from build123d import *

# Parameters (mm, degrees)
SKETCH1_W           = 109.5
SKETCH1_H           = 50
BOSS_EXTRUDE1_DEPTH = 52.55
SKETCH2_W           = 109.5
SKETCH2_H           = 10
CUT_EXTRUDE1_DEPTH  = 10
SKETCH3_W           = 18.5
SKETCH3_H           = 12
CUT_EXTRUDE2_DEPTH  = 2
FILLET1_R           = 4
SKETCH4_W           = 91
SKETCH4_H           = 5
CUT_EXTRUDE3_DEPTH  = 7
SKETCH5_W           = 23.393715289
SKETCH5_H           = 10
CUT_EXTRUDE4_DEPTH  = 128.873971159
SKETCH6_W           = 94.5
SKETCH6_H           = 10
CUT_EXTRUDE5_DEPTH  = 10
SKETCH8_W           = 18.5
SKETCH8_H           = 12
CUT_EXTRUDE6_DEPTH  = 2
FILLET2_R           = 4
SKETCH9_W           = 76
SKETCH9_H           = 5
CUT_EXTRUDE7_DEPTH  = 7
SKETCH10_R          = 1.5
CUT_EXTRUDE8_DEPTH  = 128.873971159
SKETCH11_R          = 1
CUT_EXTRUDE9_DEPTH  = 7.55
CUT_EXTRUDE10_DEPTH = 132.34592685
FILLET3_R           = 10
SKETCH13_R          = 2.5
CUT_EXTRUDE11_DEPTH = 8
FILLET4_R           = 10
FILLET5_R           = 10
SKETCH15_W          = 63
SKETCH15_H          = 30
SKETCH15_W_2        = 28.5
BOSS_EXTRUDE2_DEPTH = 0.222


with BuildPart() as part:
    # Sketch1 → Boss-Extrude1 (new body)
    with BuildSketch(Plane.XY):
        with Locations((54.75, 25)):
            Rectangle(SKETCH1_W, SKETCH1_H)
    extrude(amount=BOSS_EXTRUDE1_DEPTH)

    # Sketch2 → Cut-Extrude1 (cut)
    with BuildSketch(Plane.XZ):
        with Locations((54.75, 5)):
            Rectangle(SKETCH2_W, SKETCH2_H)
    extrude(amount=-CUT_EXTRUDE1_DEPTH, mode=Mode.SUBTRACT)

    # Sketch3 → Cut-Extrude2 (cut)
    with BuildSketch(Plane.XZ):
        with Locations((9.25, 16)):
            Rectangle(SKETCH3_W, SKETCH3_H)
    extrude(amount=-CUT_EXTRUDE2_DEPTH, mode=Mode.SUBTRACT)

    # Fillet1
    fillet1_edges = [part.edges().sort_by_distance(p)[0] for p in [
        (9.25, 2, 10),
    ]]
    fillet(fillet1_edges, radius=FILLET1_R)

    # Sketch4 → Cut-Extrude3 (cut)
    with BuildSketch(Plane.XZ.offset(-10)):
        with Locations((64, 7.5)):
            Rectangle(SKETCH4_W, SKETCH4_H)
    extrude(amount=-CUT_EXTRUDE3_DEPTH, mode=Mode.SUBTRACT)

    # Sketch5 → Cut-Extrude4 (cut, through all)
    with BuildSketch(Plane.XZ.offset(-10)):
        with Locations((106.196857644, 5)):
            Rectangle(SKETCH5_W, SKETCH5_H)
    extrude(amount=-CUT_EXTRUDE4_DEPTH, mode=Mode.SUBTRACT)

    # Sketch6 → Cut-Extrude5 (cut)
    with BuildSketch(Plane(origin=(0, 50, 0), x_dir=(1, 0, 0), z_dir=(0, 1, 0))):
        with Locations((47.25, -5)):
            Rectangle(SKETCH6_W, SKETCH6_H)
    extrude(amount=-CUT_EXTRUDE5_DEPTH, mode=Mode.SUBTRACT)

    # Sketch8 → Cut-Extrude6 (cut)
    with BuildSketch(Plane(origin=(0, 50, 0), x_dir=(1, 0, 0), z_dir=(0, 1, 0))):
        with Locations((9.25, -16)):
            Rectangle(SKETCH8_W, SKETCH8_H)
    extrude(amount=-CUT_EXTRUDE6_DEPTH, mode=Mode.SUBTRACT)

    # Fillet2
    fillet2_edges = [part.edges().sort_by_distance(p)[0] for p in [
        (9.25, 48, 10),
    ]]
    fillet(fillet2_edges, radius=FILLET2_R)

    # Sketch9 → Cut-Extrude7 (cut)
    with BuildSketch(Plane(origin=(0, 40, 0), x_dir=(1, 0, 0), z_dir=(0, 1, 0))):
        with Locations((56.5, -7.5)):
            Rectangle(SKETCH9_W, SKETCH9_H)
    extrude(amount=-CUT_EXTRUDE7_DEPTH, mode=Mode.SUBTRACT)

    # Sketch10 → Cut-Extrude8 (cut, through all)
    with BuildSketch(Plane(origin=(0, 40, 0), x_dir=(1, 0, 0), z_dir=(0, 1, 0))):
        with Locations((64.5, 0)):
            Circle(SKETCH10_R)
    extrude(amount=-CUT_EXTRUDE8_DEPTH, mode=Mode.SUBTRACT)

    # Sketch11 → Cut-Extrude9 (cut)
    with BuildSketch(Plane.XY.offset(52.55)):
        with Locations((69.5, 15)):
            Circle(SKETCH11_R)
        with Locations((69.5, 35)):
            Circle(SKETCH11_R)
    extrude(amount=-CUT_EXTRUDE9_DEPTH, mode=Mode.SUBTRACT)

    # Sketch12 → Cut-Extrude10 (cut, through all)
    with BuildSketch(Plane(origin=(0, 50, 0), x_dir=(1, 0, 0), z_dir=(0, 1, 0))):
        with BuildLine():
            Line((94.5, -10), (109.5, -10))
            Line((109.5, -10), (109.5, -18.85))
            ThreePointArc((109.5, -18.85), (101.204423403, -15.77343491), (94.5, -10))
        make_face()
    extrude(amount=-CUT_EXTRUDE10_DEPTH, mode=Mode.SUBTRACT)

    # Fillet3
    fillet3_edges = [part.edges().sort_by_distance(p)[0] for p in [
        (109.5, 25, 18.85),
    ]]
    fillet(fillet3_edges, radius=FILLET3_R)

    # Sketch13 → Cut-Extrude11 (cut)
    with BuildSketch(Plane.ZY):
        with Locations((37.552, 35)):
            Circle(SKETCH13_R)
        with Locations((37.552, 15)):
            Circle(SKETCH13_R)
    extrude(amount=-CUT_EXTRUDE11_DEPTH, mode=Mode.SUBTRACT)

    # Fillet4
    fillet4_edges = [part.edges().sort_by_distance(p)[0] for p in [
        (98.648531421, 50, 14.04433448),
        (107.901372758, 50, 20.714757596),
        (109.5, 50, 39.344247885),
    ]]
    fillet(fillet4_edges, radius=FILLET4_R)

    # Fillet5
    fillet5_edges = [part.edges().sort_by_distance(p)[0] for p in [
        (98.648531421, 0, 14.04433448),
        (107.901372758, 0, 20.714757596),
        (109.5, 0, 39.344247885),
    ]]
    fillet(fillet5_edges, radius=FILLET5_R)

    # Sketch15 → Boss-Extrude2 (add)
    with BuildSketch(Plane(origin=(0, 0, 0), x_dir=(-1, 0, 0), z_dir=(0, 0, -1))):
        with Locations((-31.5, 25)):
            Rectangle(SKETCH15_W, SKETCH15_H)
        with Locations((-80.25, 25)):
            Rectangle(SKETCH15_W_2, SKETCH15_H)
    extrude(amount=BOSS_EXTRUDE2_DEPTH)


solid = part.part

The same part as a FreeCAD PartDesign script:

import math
import FreeCAD as App
import Part
import Sketcher

V = App.Vector


def edges_at(feature, points):
    """Names of the edges that pass closest to the given points."""
    edges = feature.Shape.Edges
    near = lambda p: min(range(len(edges)), key=lambda i: edges[i].distToShape(Part.Vertex(*p))[0])
    return sorted({f"Edge{near(p) + 1}" for p in points})


def add_polygon(sketch, points):
    """Adds a closed chain of lines whose ends are joined by coincident constraints."""
    first, n = sketch.GeometryCount, len(points)
    for a, b in zip(points, points[1:] + points[:1]):
        sketch.addGeometry(Part.LineSegment(App.Vector(*a, 0), App.Vector(*b, 0)), False)
    for i in range(n):
        sketch.addConstraint(Sketcher.Constraint("Coincident", first + i, 2, first + (i + 1) % n, 1))

doc = App.newDocument("Part")
params = doc.addObject("Spreadsheet::Sheet", "Params")
for row, (alias, value) in enumerate([
    ("sketch1_height", "50 mm"),
    ("sketch1_width", "109.5 mm"),
    ("pad1_length", "52.55 mm"),
    ("sketch2_height", "10 mm"),
    ("sketch2_width", "109.5 mm"),
    ("pocket1_length", "10 mm"),
    ("sketch3_height", "12 mm"),
    ("sketch3_width", "18.5 mm"),
    ("pocket2_length", "2 mm"),
    ("fillet_radius", "4 mm"),
    ("sketch4_width", "91 mm"),
    ("sketch4_height", "5 mm"),
    ("pocket3_length", "7 mm"),
    ("sketch5_height", "10 mm"),
    ("sketch6_height", "10 mm"),
    ("sketch6_width", "94.5 mm"),
    ("pocket5_length", "10 mm"),
    ("sketch7_height", "12 mm"),
    ("sketch7_width", "18.5 mm"),
    ("pocket6_length", "2 mm"),
    ("fillet2_radius", "4 mm"),
    ("sketch8_width", "76 mm"),
    ("sketch8_height", "5 mm"),
    ("pocket7_length", "7 mm"),
    ("sketch9_diameter", "3 mm"),
    ("sketch10_diameter", "2 mm"),
    ("pocket9_length", "7.55 mm"),
    ("sketch11_radius", "25 mm"),
    ("sketch11_width", "15 mm"),
    ("sketch11_height", "8.85 mm"),
    ("fillet3_radius", "10 mm"),
    ("sketch12_diameter", "5 mm"),
    ("pocket11_length", "8 mm"),
    ("fillet4_radius", "10 mm"),
    ("fillet5_radius", "10 mm"),
    ("sketch13_width", "63 mm"),
    ("sketch13_height", "30 mm"),
    ("sketch13_width2", "28.5 mm"),
    ("pad2_length", "0.222 mm"),
], start=1):
    params.set(f"A{row}", alias)
    params.set(f"B{row}", "=" + value)
    params.setAlias(f"B{row}", alias)

body = doc.addObject("PartDesign::Body", "Body")

# Sketch on XY plane
sketch1 = body.newObject("Sketcher::SketchObject", "Sketch")
sketch1.AttachmentSupport = (doc.getObject("XY_Plane"), [""])
sketch1.MapMode = "FlatFace"
add_polygon(sketch1, [(0, 50), (0, 0), (110, 0), (110, 50)])  # lines 0-3
sketch1.addConstraint(Sketcher.Constraint("Vertical", 0))
sketch1.addConstraint(Sketcher.Constraint("Horizontal", 1))
sketch1.addConstraint(Sketcher.Constraint("Vertical", 2))
sketch1.addConstraint(Sketcher.Constraint("Horizontal", 3))
sketch1.addConstraint(Sketcher.Constraint("Coincident", 0, 2, -1, 1))
sketch1.addConstraint(Sketcher.Constraint("DistanceY", 0, 2, 0, 1, 50.0))
sketch1.addConstraint(Sketcher.Constraint("DistanceX", 1, 1, 1, 2, 109.5))
sketch1.setExpression("Constraints[9]", "Params.sketch1_height")
sketch1.setExpression("Constraints[10]", "Params.sketch1_width")
pad1 = body.newObject("PartDesign::Pad", "Pad")
pad1.Profile = sketch1
pad1.setExpression("Length", "Params.pad1_length")

# Sketch on XZ plane
sketch2 = body.newObject("Sketcher::SketchObject", "Sketch001")
sketch2.AttachmentSupport = (doc.getObject("XZ_Plane"), [""])
sketch2.MapMode = "FlatFace"
add_polygon(sketch2, [(0, 10), (0, 0), (110, 0), (110, 10)])  # lines 0-3
sketch2.addConstraint(Sketcher.Constraint("Vertical", 0))
sketch2.addConstraint(Sketcher.Constraint("Horizontal", 1))
sketch2.addConstraint(Sketcher.Constraint("Vertical", 2))
sketch2.addConstraint(Sketcher.Constraint("Horizontal", 3))
sketch2.addConstraint(Sketcher.Constraint("Coincident", 0, 2, -1, 1))
sketch2.addConstraint(Sketcher.Constraint("DistanceY", 0, 2, 0, 1, 10.0))
sketch2.addConstraint(Sketcher.Constraint("DistanceX", 1, 1, 1, 2, 109.5))
sketch2.setExpression("Constraints[9]", "Params.sketch2_height")
sketch2.setExpression("Constraints[10]", "Params.sketch2_width")
pocket1 = body.newObject("PartDesign::Pocket", "Pocket")
pocket1.Profile = sketch2
pocket1.setExpression("Length", "Params.pocket1_length")

# Sketch on XZ plane
sketch3 = body.newObject("Sketcher::SketchObject", "Sketch002")
sketch3.AttachmentSupport = (doc.getObject("XZ_Plane"), [""])
sketch3.MapMode = "FlatFace"
add_polygon(sketch3, [(0, 22), (0, 10), (18, 10), (18, 22)])  # lines 0-3
sketch3.addConstraint(Sketcher.Constraint("Vertical", 0))
sketch3.addConstraint(Sketcher.Constraint("Horizontal", 1))
sketch3.addConstraint(Sketcher.Constraint("Vertical", 2))
sketch3.addConstraint(Sketcher.Constraint("Horizontal", 3))
sketch3.addConstraint(Sketcher.Constraint("PointOnObject", 0, 2, -2))
sketch3.addConstraint(Sketcher.Constraint("DistanceY", 0, 2, 0, 1, 12.0))
sketch3.addConstraint(Sketcher.Constraint("DistanceX", 1, 1, 1, 2, 18.5))
sketch3.addConstraint(Sketcher.Constraint("DistanceY", -1, 1, 0, 2, 10.0))
sketch3.setExpression("Constraints[9]", "Params.sketch3_height")
sketch3.setExpression("Constraints[10]", "Params.sketch3_width")
pocket2 = body.newObject("PartDesign::Pocket", "Pocket001")
pocket2.Profile = sketch3
pocket2.setExpression("Length", "Params.pocket2_length")
doc.recompute()

fillet = body.newObject("PartDesign::Fillet", "Fillet")
fillet.Base = (pocket2, edges_at(pocket2, [(9.25, 2, 10)]))
fillet.setExpression("Radius", "Params.fillet_radius")

# Sketch on XZ plane
sketch4 = body.newObject("Sketcher::SketchObject", "Sketch003")
sketch4.AttachmentSupport = (doc.getObject("XZ_Plane"), [""])
sketch4.MapMode = "FlatFace"
sketch4.AttachmentOffset = App.Placement(V(0, 0, -10), App.Rotation())
add_polygon(sketch4, [(18, 10), (18, 5), (110, 5), (110, 10)])  # lines 0-3
sketch4.addConstraint(Sketcher.Constraint("Vertical", 0))
sketch4.addConstraint(Sketcher.Constraint("Horizontal", 1))
sketch4.addConstraint(Sketcher.Constraint("Vertical", 2))
sketch4.addConstraint(Sketcher.Constraint("Horizontal", 3))
sketch4.addConstraint(Sketcher.Constraint("DistanceX", 1, 1, 1, 2, 91.0))
sketch4.addConstraint(Sketcher.Constraint("DistanceY", 0, 2, 0, 1, 5.0))
sketch4.addConstraint(Sketcher.Constraint("DistanceY", -1, 1, 0, 2, 5.0))
sketch4.addConstraint(Sketcher.Constraint("DistanceX", -1, 1, 0, 2, 18.5))
sketch4.setExpression("Constraints[8]", "Params.sketch4_width")
sketch4.setExpression("Constraints[9]", "Params.sketch4_height")
pocket3 = body.newObject("PartDesign::Pocket", "Pocket002")
pocket3.Profile = sketch4
pocket3.setExpression("Length", "Params.pocket3_length")

# Sketch on XZ plane
sketch5 = body.newObject("Sketcher::SketchObject", "Sketch004")
sketch5.AttachmentSupport = (doc.getObject("XZ_Plane"), [""])
sketch5.MapMode = "FlatFace"
sketch5.AttachmentOffset = App.Placement(V(0, 0, -10), App.Rotation())
add_polygon(sketch5, [(94, 10), (94, 0), (118, 0), (118, 10)])  # lines 0-3
sketch5.addConstraint(Sketcher.Constraint("Vertical", 0))
sketch5.addConstraint(Sketcher.Constraint("Horizontal", 1))
sketch5.addConstraint(Sketcher.Constraint("Vertical", 2))
sketch5.addConstraint(Sketcher.Constraint("Horizontal", 3))
sketch5.addConstraint(Sketcher.Constraint("PointOnObject", 0, 2, -1))
sketch5.addConstraint(Sketcher.Constraint("DistanceY", 0, 2, 0, 1, 10.0))
sketch5.addConstraint(Sketcher.Constraint("DistanceX", -1, 1, 0, 2, 94.5))
sketch5.addConstraint(Sketcher.Constraint("DistanceX", 1, 1, 1, 2, 23.393715))
sketch5.setExpression("Constraints[9]", "Params.sketch5_height")
pocket4 = body.newObject("PartDesign::Pocket", "Pocket003")
pocket4.Profile = sketch5
pocket4.Type = "ThroughAll"

# Sketch on XZ plane
sketch6 = body.newObject("Sketcher::SketchObject", "Sketch005")
sketch6.AttachmentSupport = (doc.getObject("XZ_Plane"), [""])
sketch6.MapMode = "FlatFace"
sketch6.AttachmentOffset = App.Placement(V(0, 0, -50), App.Rotation())
add_polygon(sketch6, [(0, 0), (0, 10), (94, 10), (94, 0)])  # lines 0-3
sketch6.addConstraint(Sketcher.Constraint("Vertical", 0))
sketch6.addConstraint(Sketcher.Constraint("Horizontal", 1))
sketch6.addConstraint(Sketcher.Constraint("Vertical", 2))
sketch6.addConstraint(Sketcher.Constraint("Horizontal", 3))
sketch6.addConstraint(Sketcher.Constraint("Coincident", 3, 2, -1, 1))
sketch6.addConstraint(Sketcher.Constraint("DistanceY", 0, 1, 0, 2, 10.0))
sketch6.addConstraint(Sketcher.Constraint("DistanceX", 1, 1, 1, 2, 94.5))
sketch6.setExpression("Constraints[9]", "Params.sketch6_height")
sketch6.setExpression("Constraints[10]", "Params.sketch6_width")
pocket5 = body.newObject("PartDesign::Pocket", "Pocket004")
pocket5.Profile = sketch6
pocket5.setExpression("Length", "Params.pocket5_length")
pocket5.Reversed = True

# Sketch on XZ plane
sketch7 = body.newObject("Sketcher::SketchObject", "Sketch006")
sketch7.AttachmentSupport = (doc.getObject("XZ_Plane"), [""])
sketch7.MapMode = "FlatFace"
sketch7.AttachmentOffset = App.Placement(V(0, 0, -50), App.Rotation())
add_polygon(sketch7, [(0, 10), (0, 22), (18, 22), (18, 10)])  # lines 0-3
sketch7.addConstraint(Sketcher.Constraint("Vertical", 0))
sketch7.addConstraint(Sketcher.Constraint("Horizontal", 1))
sketch7.addConstraint(Sketcher.Constraint("Vertical", 2))
sketch7.addConstraint(Sketcher.Constraint("Horizontal", 3))
sketch7.addConstraint(Sketcher.Constraint("PointOnObject", 0, 2, -2))
sketch7.addConstraint(Sketcher.Constraint("DistanceY", 0, 1, 0, 2, 12.0))
sketch7.addConstraint(Sketcher.Constraint("DistanceX", 1, 1, 1, 2, 18.5))
sketch7.addConstraint(Sketcher.Constraint("DistanceY", -1, 1, 0, 2, 22.0))
sketch7.setExpression("Constraints[9]", "Params.sketch7_height")
sketch7.setExpression("Constraints[10]", "Params.sketch7_width")
pocket6 = body.newObject("PartDesign::Pocket", "Pocket005")
pocket6.Profile = sketch7
pocket6.setExpression("Length", "Params.pocket6_length")
pocket6.Reversed = True
doc.recompute()

fillet2 = body.newObject("PartDesign::Fillet", "Fillet001")
fillet2.Base = (pocket6, edges_at(pocket6, [(9.25, 48, 10)]))
fillet2.setExpression("Radius", "Params.fillet2_radius")

# Sketch on XZ plane
sketch8 = body.newObject("Sketcher::SketchObject", "Sketch007")
sketch8.AttachmentSupport = (doc.getObject("XZ_Plane"), [""])
sketch8.MapMode = "FlatFace"
sketch8.AttachmentOffset = App.Placement(V(0, 0, -40), App.Rotation())
add_polygon(sketch8, [(18, 5), (18, 10), (94, 10), (94, 5)])  # lines 0-3
sketch8.addConstraint(Sketcher.Constraint("Vertical", 0))
sketch8.addConstraint(Sketcher.Constraint("Horizontal", 1))
sketch8.addConstraint(Sketcher.Constraint("Vertical", 2))
sketch8.addConstraint(Sketcher.Constraint("Horizontal", 3))
sketch8.addConstraint(Sketcher.Constraint("DistanceX", 1, 1, 1, 2, 76.0))
sketch8.addConstraint(Sketcher.Constraint("DistanceY", 0, 1, 0, 2, 5.0))
sketch8.addConstraint(Sketcher.Constraint("DistanceY", -1, 1, 0, 2, 10.0))
sketch8.addConstraint(Sketcher.Constraint("DistanceX", -1, 1, 0, 2, 18.5))
sketch8.setExpression("Constraints[8]", "Params.sketch8_width")
sketch8.setExpression("Constraints[9]", "Params.sketch8_height")
pocket7 = body.newObject("PartDesign::Pocket", "Pocket006")
pocket7.Profile = sketch8
pocket7.setExpression("Length", "Params.pocket7_length")
pocket7.Reversed = True

# Sketch on XZ plane
sketch9 = body.newObject("Sketcher::SketchObject", "Sketch008")
sketch9.AttachmentSupport = (doc.getObject("XZ_Plane"), [""])
sketch9.MapMode = "FlatFace"
sketch9.AttachmentOffset = App.Placement(V(0, 0, -40), App.Rotation())
sketch9.addGeometry(Part.Circle(V(64.5, 0, 0), V(0, 0, 1), 1.5), False)
sketch9.addConstraint(Sketcher.Constraint("PointOnObject", 0, 3, -1))
sketch9.addConstraint(Sketcher.Constraint("Diameter", 0, 3.0))
sketch9.addConstraint(Sketcher.Constraint("DistanceX", -1, 1, 0, 3, 64.5))
sketch9.setExpression("Constraints[1]", "Params.sketch9_diameter")
pocket8 = body.newObject("PartDesign::Pocket", "Pocket007")
pocket8.Profile = sketch9
pocket8.Type = "ThroughAll"
pocket8.Reversed = True

# Sketch on XY plane
sketch10 = body.newObject("Sketcher::SketchObject", "Sketch009")
sketch10.AttachmentSupport = (doc.getObject("XY_Plane"), [""])
sketch10.MapMode = "FlatFace"
sketch10.AttachmentOffset = App.Placement(V(0, 0, 52.55), App.Rotation())
sketch10.addGeometry(Part.Circle(V(69.5, 15, 0), V(0, 0, 1), 1), False)
sketch10.addGeometry(Part.Circle(V(69.5, 35, 0), V(0, 0, 1), 1), False)
sketch10.addConstraint(Sketcher.Constraint("Equal", 0, 1))
sketch10.addConstraint(Sketcher.Constraint("Vertical", 0, 3, 1, 3))
sketch10.addConstraint(Sketcher.Constraint("Diameter", 0, 2.0))
sketch10.addConstraint(Sketcher.Constraint("DistanceY", -1, 1, 0, 3, 15.0))
sketch10.addConstraint(Sketcher.Constraint("DistanceY", -1, 1, 1, 3, 35.0))
sketch10.addConstraint(Sketcher.Constraint("DistanceX", -1, 1, 0, 3, 69.5))
sketch10.setExpression("Constraints[2]", "Params.sketch10_diameter")
pocket9 = body.newObject("PartDesign::Pocket", "Pocket008")
pocket9.Profile = sketch10
pocket9.setExpression("Length", "Params.pocket9_length")

# Sketch on XZ plane
sketch11 = body.newObject("Sketcher::SketchObject", "Sketch010")
sketch11.AttachmentSupport = (doc.getObject("XZ_Plane"), [""])
sketch11.MapMode = "FlatFace"
sketch11.AttachmentOffset = App.Placement(V(0, 0, -50), App.Rotation())
sketch11.addGeometry(Part.LineSegment(V(110, 10, 0), V(94, 10, 0)), False)
sketch11.addGeometry(Part.ArcOfCircle(Part.Circle(V(114, -6, 0), V(0, 0, 1), 25), math.radians(100), math.radians(141)), False)
sketch11.addGeometry(Part.LineSegment(V(110, 19, 0), V(110, 10, 0)), False)
sketch11.addConstraint(Sketcher.Constraint("Coincident", 0, 2, 1, 2))
sketch11.addConstraint(Sketcher.Constraint("Coincident", 1, 1, 2, 1))
sketch11.addConstraint(Sketcher.Constraint("Coincident", 2, 2, 0, 1))
sketch11.addConstraint(Sketcher.Constraint("Horizontal", 0))
sketch11.addConstraint(Sketcher.Constraint("Vertical", 2))
sketch11.addConstraint(Sketcher.Constraint("Radius", 1, 25.0))
sketch11.addConstraint(Sketcher.Constraint("DistanceX", 0, 2, 0, 1, 15.0))
sketch11.addConstraint(Sketcher.Constraint("DistanceY", -1, 1, 0, 2, 10.0))
sketch11.addConstraint(Sketcher.Constraint("DistanceY", 2, 2, 2, 1, 8.85))
sketch11.addConstraint(Sketcher.Constraint("DistanceX", -1, 1, 0, 2, 94.5))
sketch11.setExpression("Constraints[5]", "Params.sketch11_radius")
sketch11.setExpression("Constraints[6]", "Params.sketch11_width")
sketch11.setExpression("Constraints[8]", "Params.sketch11_height")
pocket10 = body.newObject("PartDesign::Pocket", "Pocket009")
pocket10.Profile = sketch11
pocket10.Type = "ThroughAll"
pocket10.Reversed = True
doc.recompute()

fillet3 = body.newObject("PartDesign::Fillet", "Fillet002")
fillet3.Base = (pocket10, edges_at(pocket10, [(109.5, 25, 18.85)]))
fillet3.setExpression("Radius", "Params.fillet3_radius")

# Sketch on YZ plane
sketch12 = body.newObject("Sketcher::SketchObject", "Sketch011")
sketch12.AttachmentSupport = (doc.getObject("YZ_Plane"), [""])
sketch12.MapMode = "FlatFace"
sketch12.addGeometry(Part.Circle(V(35, 37.6, 0), V(0, 0, 1), 2.5), False)
sketch12.addGeometry(Part.Circle(V(15, 37.6, 0), V(0, 0, 1), 2.5), False)
sketch12.addConstraint(Sketcher.Constraint("Equal", 0, 1))
sketch12.addConstraint(Sketcher.Constraint("Horizontal", 0, 3, 1, 3))
sketch12.addConstraint(Sketcher.Constraint("Diameter", 0, 5.0))
sketch12.addConstraint(Sketcher.Constraint("DistanceX", -1, 1, 0, 3, 35.0))
sketch12.addConstraint(Sketcher.Constraint("DistanceX", -1, 1, 1, 3, 15.0))
sketch12.addConstraint(Sketcher.Constraint("DistanceY", -1, 1, 0, 3, 37.552))
sketch12.setExpression("Constraints[2]", "Params.sketch12_diameter")
pocket11 = body.newObject("PartDesign::Pocket", "Pocket010")
pocket11.Profile = sketch12
pocket11.setExpression("Length", "Params.pocket11_length")
pocket11.Reversed = True
doc.recompute()

fillet4 = body.newObject("PartDesign::Fillet", "Fillet003")
fillet4.Base = (pocket11, edges_at(pocket11, [(98.649, 50, 14.044), (107.901, 50, 20.715), (109.5, 50, 39.344)]))
fillet4.setExpression("Radius", "Params.fillet4_radius")
doc.recompute()

fillet5 = body.newObject("PartDesign::Fillet", "Fillet004")
fillet5.Base = (fillet4, edges_at(fillet4, [(98.649, 0, 14.044), (107.901, 0, 20.715), (109.5, 0, 39.344)]))
fillet5.setExpression("Radius", "Params.fillet5_radius")

# Sketch on XY plane
sketch13 = body.newObject("Sketcher::SketchObject", "Sketch012")
sketch13.AttachmentSupport = (doc.getObject("XY_Plane"), [""])
sketch13.MapMode = "FlatFace"
add_polygon(sketch13, [(63, 40), (63, 10), (0, 10), (0, 40)])  # lines 0-3
add_polygon(sketch13, [(94, 40), (94, 10), (66, 10), (66, 40)])  # lines 4-7
sketch13.addConstraint(Sketcher.Constraint("Vertical", 0))
sketch13.addConstraint(Sketcher.Constraint("Horizontal", 1))
sketch13.addConstraint(Sketcher.Constraint("Vertical", 2))
sketch13.addConstraint(Sketcher.Constraint("Horizontal", 3))
sketch13.addConstraint(Sketcher.Constraint("Vertical", 4))
sketch13.addConstraint(Sketcher.Constraint("Horizontal", 5))
sketch13.addConstraint(Sketcher.Constraint("Vertical", 6))
sketch13.addConstraint(Sketcher.Constraint("Horizontal", 7))
sketch13.addConstraint(Sketcher.Constraint("PointOnObject", 1, 2, -2))
sketch13.addConstraint(Sketcher.Constraint("Horizontal", 1, 2, 4, 2))
sketch13.addConstraint(Sketcher.Constraint("Horizontal", 3, 2, 6, 2))
sketch13.addConstraint(Sketcher.Constraint("DistanceX", 1, 2, 1, 1, 63.0))
sketch13.addConstraint(Sketcher.Constraint("DistanceY", 0, 2, 0, 1, 30.0))
sketch13.addConstraint(Sketcher.Constraint("DistanceX", 5, 2, 5, 1, 28.5))
sketch13.addConstraint(Sketcher.Constraint("DistanceY", -1, 1, 0, 2, 10.0))
sketch13.addConstraint(Sketcher.Constraint("DistanceX", -1, 1, 5, 2, 66.0))
sketch13.setExpression("Constraints[19]", "Params.sketch13_width")
sketch13.setExpression("Constraints[20]", "Params.sketch13_height")
sketch13.setExpression("Constraints[21]", "Params.sketch13_width2")
pad2 = body.newObject("PartDesign::Pad", "Pad001")
pad2.Profile = sketch13
pad2.setExpression("Length", "Params.pad2_length")
pad2.Reversed = True

doc.recompute()
